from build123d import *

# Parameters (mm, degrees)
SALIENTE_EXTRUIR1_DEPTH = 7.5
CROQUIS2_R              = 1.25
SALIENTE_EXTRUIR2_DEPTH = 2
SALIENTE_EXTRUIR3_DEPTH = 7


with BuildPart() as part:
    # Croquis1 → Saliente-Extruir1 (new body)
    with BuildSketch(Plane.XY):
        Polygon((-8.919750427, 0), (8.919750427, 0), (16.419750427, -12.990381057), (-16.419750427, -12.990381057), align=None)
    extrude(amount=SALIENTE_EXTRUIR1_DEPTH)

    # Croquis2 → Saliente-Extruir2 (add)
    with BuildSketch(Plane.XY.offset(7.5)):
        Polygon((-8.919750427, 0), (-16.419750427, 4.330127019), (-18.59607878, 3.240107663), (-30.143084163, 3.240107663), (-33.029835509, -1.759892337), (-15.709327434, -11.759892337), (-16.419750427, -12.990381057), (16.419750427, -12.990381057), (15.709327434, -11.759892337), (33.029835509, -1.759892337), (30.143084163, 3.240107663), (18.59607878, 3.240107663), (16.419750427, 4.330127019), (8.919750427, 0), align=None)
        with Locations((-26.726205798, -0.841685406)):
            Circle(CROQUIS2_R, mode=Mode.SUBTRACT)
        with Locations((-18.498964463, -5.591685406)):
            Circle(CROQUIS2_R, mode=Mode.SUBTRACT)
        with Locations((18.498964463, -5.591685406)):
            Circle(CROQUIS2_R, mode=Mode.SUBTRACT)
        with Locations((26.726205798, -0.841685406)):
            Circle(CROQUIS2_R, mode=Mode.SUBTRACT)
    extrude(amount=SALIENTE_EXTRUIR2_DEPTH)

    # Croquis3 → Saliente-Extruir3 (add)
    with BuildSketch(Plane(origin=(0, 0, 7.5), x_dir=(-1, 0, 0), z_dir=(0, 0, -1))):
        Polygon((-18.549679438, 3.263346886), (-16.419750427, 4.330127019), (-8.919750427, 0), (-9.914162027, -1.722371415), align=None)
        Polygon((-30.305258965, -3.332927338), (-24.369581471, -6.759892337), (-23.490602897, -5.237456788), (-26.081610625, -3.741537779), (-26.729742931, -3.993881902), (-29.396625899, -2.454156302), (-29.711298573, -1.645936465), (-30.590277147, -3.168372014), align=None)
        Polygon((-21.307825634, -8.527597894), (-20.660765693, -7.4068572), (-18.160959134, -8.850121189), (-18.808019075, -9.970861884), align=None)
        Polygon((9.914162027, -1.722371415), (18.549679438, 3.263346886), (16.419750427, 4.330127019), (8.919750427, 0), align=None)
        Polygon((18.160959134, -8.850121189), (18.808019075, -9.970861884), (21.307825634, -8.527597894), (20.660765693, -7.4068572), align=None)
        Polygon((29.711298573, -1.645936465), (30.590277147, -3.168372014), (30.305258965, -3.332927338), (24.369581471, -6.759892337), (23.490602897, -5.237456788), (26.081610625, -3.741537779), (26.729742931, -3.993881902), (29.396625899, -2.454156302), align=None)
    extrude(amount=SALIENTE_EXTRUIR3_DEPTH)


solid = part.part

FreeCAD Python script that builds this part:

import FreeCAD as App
import Part
import Sketcher

V = App.Vector
Q = App.Units.Quantity

doc = App.newDocument("Part")
body = doc.addObject("PartDesign::Body", "Body")

sketch1 = doc.addObject("Sketcher::SketchObject", "Sketch")
body.addObject(sketch1)
sketch1.AttachmentSupport = (doc.XY_Plane, [""])
sketch1.MapMode = "FlatFace"
sketch1.addGeometry([
    Part.LineSegment(V(9, 0, 0), V(-9, 0, 0)),
    Part.LineSegment(V(-9, 0, 0), V(-16, -13, 0)),
    Part.LineSegment(V(-16, -13, 0), V(16, -13, 0)),
    Part.LineSegment(V(16, -13, 0), V(9, 0, 0)),
], False)
sketch1.addConstraint([
    Sketcher.Constraint("Coincident", 0, 2, 1, 1),
    Sketcher.Constraint("Coincident", 1, 2, 2, 1),
    Sketcher.Constraint("Coincident", 2, 2, 3, 1),
    Sketcher.Constraint("Coincident", 3, 2, 0, 1),
    Sketcher.Constraint("Horizontal", 0),
    Sketcher.Constraint("Horizontal", 2),
    Sketcher.Constraint("Symmetric", 0, 2, 3, 2, -1, 1),
    Sketcher.Constraint("Equal", 1, 3),
    Sketcher.Constraint("Angle", 1, Q("-120 deg")),
    Sketcher.Constraint("Distance", 1, Q("15 mm")),
    Sketcher.Constraint("DistanceX", 0, 2, 0, 1, Q("17.839501 mm")),
])
pad1 = doc.addObject("PartDesign::Pad", "Pad")
body.addObject(pad1)
pad1.Profile = sketch1
pad1.Length = 7.5

sketch2 = doc.addObject("Sketcher::SketchObject", "Sketch001")
body.addObject(sketch2)
sketch2.AttachmentSupport = (doc.XY_Plane, [""])
sketch2.MapMode = "FlatFace"
sketch2.AttachmentOffset = App.Placement(V(0, 0, 7.5), App.Rotation())
sketch2.addGeometry([
    Part.LineSegment(V(-8.9, 0, 0), V(-16.4, 4.3, 0)),
    Part.LineSegment(V(-16.4, 4.3, 0), V(-18.6, 3.2, 0)),
    Part.LineSegment(V(-18.6, 3.2, 0), V(-30.1, 3.2, 0)),
    Part.LineSegment(V(-30.1, 3.2, 0), V(-33, -1.8, 0)),
    Part.LineSegment(V(-33, -1.8, 0), V(-15.7, -11.8, 0)),
    Part.LineSegment(V(-15.7, -11.8, 0), V(-16.4, -13, 0)),
    Part.LineSegment(V(-16.4, -13, 0), V(16.4, -13, 0)),
    Part.LineSegment(V(16.4, -13, 0), V(15.7, -11.8, 0)),
    Part.LineSegment(V(15.7, -11.8, 0), V(33, -1.8, 0)),
    Part.LineSegment(V(33, -1.8, 0), V(30.1, 3.2, 0)),
    Part.LineSegment(V(30.1, 3.2, 0), V(18.6, 3.2, 0)),
    Part.LineSegment(V(18.6, 3.2, 0), V(16.4, 4.3, 0)),
    Part.LineSegment(V(16.4, 4.3, 0), V(8.9, 0, 0)),
    Part.LineSegment(V(8.9, 0, 0), V(-8.9, 0, 0)),
    Part.Circle(V(-18.5, -5.6, 0), V(0, 0, 1), 1.2),
    Part.Circle(V(18.5, -5.6, 0), V(0, 0, 1), 1.2),
    Part.Circle(V(-26.7, -0.8, 0), V(0, 0, 1), 1.2),
    Part.Circle(V(26.7, -0.8, 0), V(0, 0, 1), 1.2),
], False)
sketch2.addConstraint([
    Sketcher.Constraint("Coincident", 0, 2, 1, 1),
    Sketcher.Constraint("Coincident", 1, 2, 2, 1),
    Sketcher.Constraint("Coincident", 2, 2, 3, 1),
    Sketcher.Constraint("Coincident", 3, 2, 4, 1),
    Sketcher.Constraint("Coincident", 4, 2, 5, 1),
    Sketcher.Constraint("Coincident", 5, 2, 6, 1),
    Sketcher.Constraint("Coincident", 6, 2, 7, 1),
    Sketcher.Constraint("Coincident", 7, 2, 8, 1),
    Sketcher.Constraint("Coincident", 8, 2, 9, 1),
    Sketcher.Constraint("Coincident", 9, 2, 10, 1),
    Sketcher.Constraint("Coincident", 10, 2, 11, 1),
    Sketcher.Constraint("Coincident", 11, 2, 12, 1),
    Sketcher.Constraint("Coincident", 12, 2, 13, 1),
    Sketcher.Constraint("Coincident", 13, 2, 0, 1),
    Sketcher.Constraint("Horizontal", 2),
    Sketcher.Constraint("Horizontal", 6),
    Sketcher.Constraint("Horizontal", 10),
    Sketcher.Constraint("Horizontal", 13),
    Sketcher.Constraint("Equal", 14, 15),
    Sketcher.Constraint("Equal", 15, 16),
    Sketcher.Constraint("Equal", 16, 17),
    Sketcher.Constraint("Symmetric", 12, 2, 13, 2, -1, 1),
    Sketcher.Constraint("Symmetric", 14, 3, 15, 3, -2),
    Sketcher.Constraint("Symmetric", 16, 3, 17, 3, -2),
    Sketcher.Constraint("Symmetric", 4, 2, 7, 2, -2),
    Sketcher.Constraint("Symmetric", 3, 2, 8, 2, -2),
    Sketcher.Constraint("Symmetric", 2, 2, 9, 2, -2),
    Sketcher.Constraint("Symmetric", 0, 2, 11, 2, -2),
    Sketcher.Constraint("Perpendicular", 0, 3),
    Sketcher.Constraint("Perpendicular", 3, 4),
    Sketcher.Constraint("Perpendicular", 4, 5),
    Sketcher.Constraint("Perpendicular", 7, 8),
    Sketcher.Constraint("Vertical", 0, 2, 5, 2),
    Sketcher.Constraint("Equal", 2, 10),
    Sketcher.Constraint("Diameter", 14, Q("2.5 mm")),
    Sketcher.Constraint("Angle", 0, Q("150 deg")),
    Sketcher.Constraint("Distance", 4, Q("20 mm")),
    Sketcher.Constraint("DistanceY", 3, 2, 2, 2, Q("5 mm")),
    Sketcher.Constraint("DistanceX", 12, 2, 11, 2, Q("7.5 mm")),
    Sketcher.Constraint("DistanceY", 14, 3, 16, 3, Q("4.75 mm")),
    Sketcher.Constraint("DistanceX", 6, 1, 6, 2, Q("32.839501 mm")),
    Sketcher.Constraint("Distance", 1, Q("2.434039 mm")),
    Sketcher.Constraint("DistanceX", 2, 2, 2, 1, Q("11.547005 mm")),
    Sketcher.Constraint("DistanceX", 1, 2, -1, 1, Q("18.596079 mm")),
    Sketcher.Constraint("DistanceX", 14, 3, 15, 3, Q("36.997929 mm")),
    Sketcher.Constraint("DistanceX", 16, 3, 14, 3, Q("8.227241 mm")),
    Sketcher.Constraint("DistanceY", 14, 3, -1, 1, Q("5.591685 mm")),
])
pad2 = doc.addObject("PartDesign::Pad", "Pad001")
body.addObject(pad2)
pad2.Profile = sketch2
pad2.Length = 2

sketch3 = doc.addObject("Sketcher::SketchObject", "Sketch002")
body.addObject(sketch3)
sketch3.AttachmentSupport = (doc.XY_Plane, [""])
sketch3.MapMode = "FlatFace"
sketch3.AttachmentOffset = App.Placement(V(0, 0, 7.5), App.Rotation())
sketch3.addGeometry([
    Part.LineSegment(V(16.42, 4.33, 0), V(18.55, 3.26, 0)),
    Part.LineSegment(V(18.55, 3.26, 0), V(9.91, -1.72, 0)),
    Part.LineSegment(V(9.91, -1.72, 0), V(8.92, 0, 0)),
    Part.LineSegment(V(8.92, 0, 0), V(16.42, 4.33, 0)),
    Part.LineSegment(V(30.31, -3.33, 0), V(24.37, -6.76, 0)),
    Part.LineSegment(V(24.37, -6.76, 0), V(23.49, -5.24, 0)),
    Part.LineSegment(V(23.49, -5.24, 0), V(26.08, -3.74, 0)),
    Part.LineSegment(V(26.08, -3.74, 0), V(26.73, -3.99, 0)),
    Part.LineSegment(V(26.73, -3.99, 0), V(29.4, -2.45, 0)),
    Part.LineSegment(V(29.4, -2.45, 0), V(29.71, -1.65, 0)),
    Part.LineSegment(V(29.71, -1.65, 0), V(30.59, -3.17, 0)),
    Part.LineSegment(V(30.59, -3.17, 0), V(30.31, -3.33, 0)),
    Part.LineSegment(V(20.66, -7.41, 0), V(21.31, -8.53, 0)),
    Part.LineSegment(V(21.31, -8.53, 0), V(18.81, -9.97, 0)),
    Part.LineSegment(V(18.81, -9.97, 0), V(18.16, -8.85, 0)),
    Part.LineSegment(V(18.16, -8.85, 0), V(20.66, -7.41, 0)),
    Part.LineSegment(V(-9.91, -1.72, 0), V(-18.55, 3.26, 0)),
    Part.LineSegment(V(-18.55, 3.26, 0), V(-16.42, 4.33, 0)),
    Part.LineSegment(V(-16.42, 4.33, 0), V(-8.92, 0, 0)),
    Part.LineSegment(V(-8.92, 0, 0), V(-9.91, -1.72, 0)),
    Part.LineSegment(V(-18.16, -8.85, 0), V(-18.81, -9.97, 0)),
    Part.LineSegment(V(-18.81, -9.97, 0), V(-21.31, -8.53, 0)),
    Part.LineSegment(V(-21.31, -8.53, 0), V(-20.66, -7.41, 0)),
    Part.LineSegment(V(-20.66, -7.41, 0), V(-18.16, -8.85, 0)),
    Part.LineSegment(V(-30.59, -3.17, 0), V(-29.71, -1.65, 0)),
    Part.LineSegment(V(-29.71, -1.65, 0), V(-29.4, -2.45, 0)),
    Part.LineSegment(V(-29.4, -2.45, 0), V(-26.73, -3.99, 0)),
    Part.LineSegment(V(-26.73, -3.99, 0), V(-26.08, -3.74, 0)),
    Part.LineSegment(V(-26.08, -3.74, 0), V(-23.49, -5.24, 0)),
    Part.LineSegment(V(-23.49, -5.24, 0), V(-24.37, -6.76, 0)),
    Part.LineSegment(V(-24.37, -6.76, 0), V(-30.31, -3.33, 0)),
    Part.LineSegment(V(-30.31, -3.33, 0), V(-30.59, -3.17, 0)),
], False)
sketch3.addConstraint([
    Sketcher.Constraint("Coincident", 0, 2, 1, 1),
    Sketcher.Constraint("Coincident", 1, 2, 2, 1),
    Sketcher.Constraint("Coincident", 2, 2, 3, 1),
    Sketcher.Constraint("Coincident", 3, 2, 0, 1),
    Sketcher.Constraint("Coincident", 4, 2, 5, 1),
    Sketcher.Constraint("Coincident", 5, 2, 6, 1),
    Sketcher.Constraint("Coincident", 6, 2, 7, 1),
    Sketcher.Constraint("Coincident", 7, 2, 8, 1),
    Sketcher.Constraint("Coincident", 8, 2, 9, 1),
    Sketcher.Constraint("Coincident", 9, 2, 10, 1),
    Sketcher.Constraint("Coincident", 10, 2, 11, 1),
    Sketcher.Constraint("Coincident", 11, 2, 4, 1),
    Sketcher.Constraint("Coincident", 12, 2, 13, 1),
    Sketcher.Constraint("Coincident", 13, 2, 14, 1),
    Sketcher.Constraint("Coincident", 14, 2, 15, 1),
    Sketcher.Constraint("Coincident", 15, 2, 12, 1),
    Sketcher.Constraint("Coincident", 16, 2, 17, 1),
    Sketcher.Constraint("Coincident", 17, 2, 18, 1),
    Sketcher.Constraint("Coincident", 18, 2, 19, 1),
    Sketcher.Constraint("Coincident", 19, 2, 16, 1),
    Sketcher.Constraint("Coincident", 20, 2, 21, 1),
    Sketcher.Constraint("Coincident", 21, 2, 22, 1),
    Sketcher.Constraint("Coincident", 22, 2, 23, 1),
    Sketcher.Constraint("Coincident", 23, 2, 20, 1),
    Sketcher.Constraint("Coincident", 24, 2, 25, 1),
    Sketcher.Constraint("Coincident", 25, 2, 26, 1),
    Sketcher.Constraint("Coincident", 26, 2, 27, 1),
    Sketcher.Constraint("Coincident", 27, 2, 28, 1),
    Sketcher.Constraint("Coincident", 28, 2, 29, 1),
    Sketcher.Constraint("Coincident", 29, 2, 30, 1),
    Sketcher.Constraint("Coincident", 30, 2, 31, 1),
    Sketcher.Constraint("Coincident", 31, 2, 24, 1),
    Sketcher.Constraint("Symmetric", 2, 2, 18, 2, -1, 1),
    Sketcher.Constraint("Symmetric", 0, 2, 16, 2, -2),
    Sketcher.Constraint("Symmetric", 3, 2, 17, 2, -2),
    Sketcher.Constraint("Symmetric", 1, 2, 19, 2, -2),
    Sketcher.Constraint("Symmetric", 13, 2, 20, 2, -2),
    Sketcher.Constraint("Symmetric", 12, 2, 21, 2, -2),
    Sketcher.Constraint("Symmetric", 15, 2, 22, 2, -2),
    Sketcher.Constraint("Symmetric", 14, 2, 23, 2, -2),
    Sketcher.Constraint("Symmetric", 9, 2, 24, 2, -2),
    Sketcher.Constraint("Symmetric", 8, 2, 25, 2, -2),
    Sketcher.Constraint("Symmetric", 7, 2, 26, 2, -2),
    Sketcher.Constraint("Symmetric", 6, 2, 27, 2, -2),
    Sketcher.Constraint("Symmetric", 5, 2, 28, 2, -2),
    Sketcher.Constraint("Symmetric", 4, 2, 29, 2, -2),
    Sketcher.Constraint("Symmetric", 11, 2, 30, 2, -2),
    Sketcher.Constraint("Symmetric", 10, 2, 31, 2, -2),
    Sketcher.Constraint("PointOnObject", 2, 2, -1),
    Sketcher.Constraint("Perpendicular", 1, 2),
    Sketcher.Constraint("Perpendicular", 2, 3),
    Sketcher.Constraint("Parallel", 3, 4),
    Sketcher.Constraint("Perpendicular", 4, 5),
    Sketcher.Constraint("Perpendicular", 5, 6),
    Sketcher.Constraint("Parallel", 6, 8),
    Sketcher.Constraint("Perpendicular", 7, 9),
    Sketcher.Constraint("Perpendicular", 8, 10),
    Sketcher.Constraint("Perpendicular", 10, 11),
    Sketcher.Constraint("Perpendicular", 11, 12),
    Sketcher.Constraint("Perpendicular", 12, 13),
    Sketcher.Constraint("Perpendicular", 13, 14),
    Sketcher.Constraint("Perpendicular", 14, 15),
    Sketcher.Constraint("Equal", 5, 10),
    Sketcher.Constraint("Angle", 1, Q("-150 deg")),
    Sketcher.Constraint("DistanceX", 2, 2, 3, 2, Q("7.5 mm")),
    Sketcher.Constraint("DistanceX", -1, 1, 9, 2, Q("29.711299 mm")),
    Sketcher.Constraint("DistanceY", 1, 2, 3, 2, Q("6.052498 mm")),
    Sketcher.Constraint("DistanceY", 5, 2, 8, 2, Q("2.7833 mm")),
    Sketcher.Constraint("DistanceY", 6, 2, 9, 2, Q("2.095601 mm")),
    Sketcher.Constraint("DistanceX", 12, 2, 8, 2, Q("8.0888 mm")),
    Sketcher.Constraint("DistanceY", 15, 2, 5, 2, Q("2.1694 mm")),
    Sketcher.Constraint("DistanceX", 17, 2, 2, 2, Q("25.339501 mm")),
    Sketcher.Constraint("Distance", 4, Q("6.85393 mm")),
    Sketcher.Constraint("Distance", 6, Q("2.991838 mm")),
    Sketcher.Constraint("Distance", 8, Q("3.079451 mm")),
    Sketcher.Constraint("Distance", 12, Q("1.29412 mm")),
    Sketcher.Constraint("DistanceX", -1, 1, 0, 2, Q("18.549679 mm")),
    Sketcher.Constraint("DistanceX", -1, 1, 4, 2, Q("24.369581 mm")),
    Sketcher.Constraint("DistanceY", 7, 2, -1, 1, Q("3.993882 mm")),
    Sketcher.Constraint("DistanceX", -1, 1, 13, 2, Q("18.808019 mm")),
])
pad3 = doc.addObject("PartDesign::Pad", "Pad002")
body.addObject(pad3)
pad3.Profile = sketch3
pad3.Length = 7
pad3.Reversed = True

doc.recompute()
